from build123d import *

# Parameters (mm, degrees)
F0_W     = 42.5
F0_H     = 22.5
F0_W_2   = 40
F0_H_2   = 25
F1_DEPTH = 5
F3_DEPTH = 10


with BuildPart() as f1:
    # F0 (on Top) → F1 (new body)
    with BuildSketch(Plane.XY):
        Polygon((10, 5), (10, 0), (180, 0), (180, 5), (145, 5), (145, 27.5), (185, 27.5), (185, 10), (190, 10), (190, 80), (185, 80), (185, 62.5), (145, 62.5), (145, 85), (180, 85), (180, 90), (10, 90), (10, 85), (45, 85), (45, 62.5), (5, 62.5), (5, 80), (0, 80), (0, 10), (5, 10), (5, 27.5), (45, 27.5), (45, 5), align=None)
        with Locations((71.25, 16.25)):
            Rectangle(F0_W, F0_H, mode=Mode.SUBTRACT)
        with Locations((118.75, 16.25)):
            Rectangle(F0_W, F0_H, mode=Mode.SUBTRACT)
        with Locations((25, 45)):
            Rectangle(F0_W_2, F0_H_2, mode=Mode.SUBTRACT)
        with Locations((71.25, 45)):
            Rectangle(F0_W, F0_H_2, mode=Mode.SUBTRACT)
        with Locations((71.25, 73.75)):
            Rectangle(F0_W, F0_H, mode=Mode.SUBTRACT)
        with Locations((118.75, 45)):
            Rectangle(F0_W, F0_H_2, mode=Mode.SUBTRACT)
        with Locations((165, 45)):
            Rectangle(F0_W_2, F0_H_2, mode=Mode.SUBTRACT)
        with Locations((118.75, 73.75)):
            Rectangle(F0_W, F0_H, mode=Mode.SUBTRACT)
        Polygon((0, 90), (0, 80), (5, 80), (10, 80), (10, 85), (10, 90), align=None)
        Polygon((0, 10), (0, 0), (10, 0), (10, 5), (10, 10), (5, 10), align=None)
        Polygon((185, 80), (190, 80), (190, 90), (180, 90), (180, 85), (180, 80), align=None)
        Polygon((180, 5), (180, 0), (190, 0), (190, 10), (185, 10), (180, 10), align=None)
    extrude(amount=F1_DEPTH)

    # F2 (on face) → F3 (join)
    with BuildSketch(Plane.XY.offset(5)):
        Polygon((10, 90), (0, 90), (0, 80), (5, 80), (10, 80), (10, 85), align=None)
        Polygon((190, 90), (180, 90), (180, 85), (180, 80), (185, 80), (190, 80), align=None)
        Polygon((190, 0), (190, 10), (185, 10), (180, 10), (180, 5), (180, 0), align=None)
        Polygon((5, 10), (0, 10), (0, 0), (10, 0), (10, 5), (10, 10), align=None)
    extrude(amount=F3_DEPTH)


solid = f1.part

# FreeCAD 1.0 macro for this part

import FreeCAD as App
import Part
import Sketcher

V = App.Vector
Q = App.Units.Quantity

doc = App.newDocument("Part")
body = doc.addObject("PartDesign::Body", "Body")

sketch1 = body.newObject("Sketcher::SketchObject", "Sketch")
sketch1.AttachmentSupport = (doc.getObject("XY_Plane"), [""])
sketch1.MapMode = "FlatFace"
sketch1.addGeometry([
    Part.LineSegment(V(190, 90, 0), V(0, 90, 0)),
    Part.LineSegment(V(0, 90, 0), V(0, 0, 0)),
    Part.LineSegment(V(0, 0, 0), V(190, 0, 0)),
    Part.LineSegment(V(190, 0, 0), V(190, 90, 0)),
    Part.LineSegment(V(180, 5, 0), V(145, 5, 0)),
    Part.LineSegment(V(145, 5, 0), V(145, 27.5, 0)),
    Part.LineSegment(V(145, 27.5, 0), V(185, 27.5, 0)),
    Part.LineSegment(V(185, 27.5, 0), V(185, 10, 0)),
    Part.LineSegment(V(185, 10, 0), V(180, 10, 0)),
    Part.LineSegment(V(180, 10, 0), V(180, 5, 0)),
    Part.LineSegment(V(185, 80, 0), V(185, 62.5, 0)),
    Part.LineSegment(V(185, 62.5, 0), V(145, 62.5, 0)),
    Part.LineSegment(V(145, 62.5, 0), V(145, 85, 0)),
    Part.LineSegment(V(145, 85, 0), V(180, 85, 0)),
    Part.LineSegment(V(180, 85, 0), V(180, 80, 0)),
    Part.LineSegment(V(180, 80, 0), V(185, 80, 0)),
    Part.LineSegment(V(5, 10, 0), V(5, 27.5, 0)),
    Part.LineSegment(V(5, 27.5, 0), V(45, 27.5, 0)),
    Part.LineSegment(V(45, 27.5, 0), V(45, 5, 0)),
    Part.LineSegment(V(45, 5, 0), V(10, 5, 0)),
    Part.LineSegment(V(10, 5, 0), V(10, 10, 0)),
    Part.LineSegment(V(10, 10, 0), V(5, 10, 0)),
    Part.LineSegment(V(5, 62.5, 0), V(5, 80, 0)),
    Part.LineSegment(V(5, 80, 0), V(10, 80, 0)),
    Part.LineSegment(V(10, 80, 0), V(10, 85, 0)),
    Part.LineSegment(V(10, 85, 0), V(45, 85, 0)),
    Part.LineSegment(V(45, 85, 0), V(45, 62.5, 0)),
    Part.LineSegment(V(45, 62.5, 0), V(5, 62.5, 0)),
    Part.LineSegment(V(92.5, 5, 0), V(50, 5, 0)),
    Part.LineSegment(V(50, 5, 0), V(50, 27.5, 0)),
    Part.LineSegment(V(50, 27.5, 0), V(92.5, 27.5, 0)),
    Part.LineSegment(V(92.5, 27.5, 0), V(92.5, 5, 0)),
    Part.LineSegment(V(140, 5, 0), V(97.5, 5, 0)),
    Part.LineSegment(V(97.5, 5, 0), V(97.5, 27.5, 0)),
    Part.LineSegment(V(97.5, 27.5, 0), V(140, 27.5, 0)),
    Part.LineSegment(V(140, 27.5, 0), V(140, 5, 0)),
    Part.LineSegment(V(45, 32.5, 0), V(5, 32.5, 0)),
    Part.LineSegment(V(5, 32.5, 0), V(5, 57.5, 0)),
    Part.LineSegment(V(5, 57.5, 0), V(45, 57.5, 0)),
    Part.LineSegment(V(45, 57.5, 0), V(45, 32.5, 0)),
    Part.LineSegment(V(92.5, 32.5, 0), V(50, 32.5, 0)),
    Part.LineSegment(V(50, 32.5, 0), V(50, 57.5, 0)),
    Part.LineSegment(V(50, 57.5, 0), V(92.5, 57.5, 0)),
    Part.LineSegment(V(92.5, 57.5, 0), V(92.5, 32.5, 0)),
    Part.LineSegment(V(92.5, 62.5, 0), V(50, 62.5, 0)),
    Part.LineSegment(V(50, 62.5, 0), V(50, 85, 0)),
    Part.LineSegment(V(50, 85, 0), V(92.5, 85, 0)),
    Part.LineSegment(V(92.5, 85, 0), V(92.5, 62.5, 0)),
    Part.LineSegment(V(140, 32.5, 0), V(97.5, 32.5, 0)),
    Part.LineSegment(V(97.5, 32.5, 0), V(97.5, 57.5, 0)),
    Part.LineSegment(V(97.5, 57.5, 0), V(140, 57.5, 0)),
    Part.LineSegment(V(140, 57.5, 0), V(140, 32.5, 0)),
    Part.LineSegment(V(185, 32.5, 0), V(145, 32.5, 0)),
    Part.LineSegment(V(145, 32.5, 0), V(145, 57.5, 0)),
    Part.LineSegment(V(145, 57.5, 0), V(185, 57.5, 0)),
    Part.LineSegment(V(185, 57.5, 0), V(185, 32.5, 0)),
    Part.LineSegment(V(140, 62.5, 0), V(97.5, 62.5, 0)),
    Part.LineSegment(V(97.5, 62.5, 0), V(97.5, 85, 0)),
    Part.LineSegment(V(97.5, 85, 0), V(140, 85, 0)),
    Part.LineSegment(V(140, 85, 0), V(140, 62.5, 0)),
], False)
sketch1.addConstraint([
    Sketcher.Constraint("Coincident", 0, 2, 1, 1),
    Sketcher.Constraint("Coincident", 1, 2, 2, 1),
    Sketcher.Constraint("Coincident", 2, 2, 3, 1),
    Sketcher.Constraint("Coincident", 3, 2, 0, 1),
    Sketcher.Constraint("Coincident", 4, 2, 5, 1),
    Sketcher.Constraint("Coincident", 5, 2, 6, 1),
    Sketcher.Constraint("Coincident", 6, 2, 7, 1),
    Sketcher.Constraint("Coincident", 7, 2, 8, 1),
    Sketcher.Constraint("Coincident", 8, 2, 9, 1),
    Sketcher.Constraint("Coincident", 9, 2, 4, 1),
    Sketcher.Constraint("Coincident", 10, 2, 11, 1),
    Sketcher.Constraint("Coincident", 11, 2, 12, 1),
    Sketcher.Constraint("Coincident", 12, 2, 13, 1),
    Sketcher.Constraint("Coincident", 13, 2, 14, 1),
    Sketcher.Constraint("Coincident", 14, 2, 15, 1),
    Sketcher.Constraint("Coincident", 15, 2, 10, 1),
    Sketcher.Constraint("Coincident", 16, 2, 17, 1),
    Sketcher.Constraint("Coincident", 17, 2, 18, 1),
    Sketcher.Constraint("Coincident", 18, 2, 19, 1),
    Sketcher.Constraint("Coincident", 19, 2, 20, 1),
    Sketcher.Constraint("Coincident", 20, 2, 21, 1),
    Sketcher.Constraint("Coincident", 21, 2, 16, 1),
    Sketcher.Constraint("Coincident", 22, 2, 23, 1),
    Sketcher.Constraint("Coincident", 23, 2, 24, 1),
    Sketcher.Constraint("Coincident", 24, 2, 25, 1),
    Sketcher.Constraint("Coincident", 25, 2, 26, 1),
    Sketcher.Constraint("Coincident", 26, 2, 27, 1),
    Sketcher.Constraint("Coincident", 27, 2, 22, 1),
    Sketcher.Constraint("Coincident", 28, 2, 29, 1),
    Sketcher.Constraint("Coincident", 29, 2, 30, 1),
    Sketcher.Constraint("Coincident", 30, 2, 31, 1),
    Sketcher.Constraint("Coincident", 31, 2, 28, 1),
    Sketcher.Constraint("Coincident", 32, 2, 33, 1),
    Sketcher.Constraint("Coincident", 33, 2, 34, 1),
    Sketcher.Constraint("Coincident", 34, 2, 35, 1),
    Sketcher.Constraint("Coincident", 35, 2, 32, 1),
    Sketcher.Constraint("Coincident", 36, 2, 37, 1),
    Sketcher.Constraint("Coincident", 37, 2, 38, 1),
    Sketcher.Constraint("Coincident", 38, 2, 39, 1),
    Sketcher.Constraint("Coincident", 39, 2, 36, 1),
    Sketcher.Constraint("Coincident", 40, 2, 41, 1),
    Sketcher.Constraint("Coincident", 41, 2, 42, 1),
    Sketcher.Constraint("Coincident", 42, 2, 43, 1),
    Sketcher.Constraint("Coincident", 43, 2, 40, 1),
    Sketcher.Constraint("Coincident", 44, 2, 45, 1),
    Sketcher.Constraint("Coincident", 45, 2, 46, 1),
    Sketcher.Constraint("Coincident", 46, 2, 47, 1),
    Sketcher.Constraint("Coincident", 47, 2, 44, 1),
    Sketcher.Constraint("Coincident", 48, 2, 49, 1),
    Sketcher.Constraint("Coincident", 49, 2, 50, 1),
    Sketcher.Constraint("Coincident", 50, 2, 51, 1),
    Sketcher.Constraint("Coincident", 51, 2, 48, 1),
    Sketcher.Constraint("Coincident", 52, 2, 53, 1),
    Sketcher.Constraint("Coincident", 53, 2, 54, 1),
    Sketcher.Constraint("Coincident", 54, 2, 55, 1),
    Sketcher.Constraint("Coincident", 55, 2, 52, 1),
    Sketcher.Constraint("Coincident", 56, 2, 57, 1),
    Sketcher.Constraint("Coincident", 57, 2, 58, 1),
    Sketcher.Constraint("Coincident", 58, 2, 59, 1),
    Sketcher.Constraint("Coincident", 59, 2, 56, 1),
    Sketcher.Constraint("Horizontal", 0),
    Sketcher.Constraint("Vertical", 1),
    Sketcher.Constraint("Horizontal", 2),
    Sketcher.Constraint("Vertical", 3),
    Sketcher.Constraint("Horizontal", 4),
    Sketcher.Constraint("Vertical", 5),
    Sketcher.Constraint("Horizontal", 6),
    Sketcher.Constraint("Vertical", 7),
    Sketcher.Constraint("Horizontal", 8),
    Sketcher.Constraint("Vertical", 9),
    Sketcher.Constraint("Vertical", 10),
    Sketcher.Constraint("Horizontal", 11),
    Sketcher.Constraint("Vertical", 12),
    Sketcher.Constraint("Horizontal", 13),
    Sketcher.Constraint("Vertical", 14),
    Sketcher.Constraint("Horizontal", 15),
    Sketcher.Constraint("Vertical", 16),
    Sketcher.Constraint("Horizontal", 17),
    Sketcher.Constraint("Vertical", 18),
    Sketcher.Constraint("Horizontal", 19),
    Sketcher.Constraint("Vertical", 20),
    Sketcher.Constraint("Horizontal", 21),
    Sketcher.Constraint("Vertical", 22),
    Sketcher.Constraint("Horizontal", 23),
    Sketcher.Constraint("Vertical", 24),
    Sketcher.Constraint("Horizontal", 25),
    Sketcher.Constraint("Vertical", 26),
    Sketcher.Constraint("Horizontal", 27),
    Sketcher.Constraint("Horizontal", 28),
    Sketcher.Constraint("Vertical", 29),
    Sketcher.Constraint("Horizontal", 30),
    Sketcher.Constraint("Vertical", 31),
    Sketcher.Constraint("Horizontal", 32),
    Sketcher.Constraint("Vertical", 33),
    Sketcher.Constraint("Horizontal", 34),
    Sketcher.Constraint("Vertical", 35),
    Sketcher.Constraint("Horizontal", 36),
    Sketcher.Constraint("Vertical", 37),
    Sketcher.Constraint("Horizontal", 38),
    Sketcher.Constraint("Vertical", 39),
    Sketcher.Constraint("Horizontal", 40),
    Sketcher.Constraint("Vertical", 41),
    Sketcher.Constraint("Horizontal", 42),
    Sketcher.Constraint("Vertical", 43),
    Sketcher.Constraint("Horizontal", 44),
    Sketcher.Constraint("Vertical", 45),
    Sketcher.Constraint("Horizontal", 46),
    Sketcher.Constraint("Vertical", 47),
    Sketcher.Constraint("Horizontal", 48),
    Sketcher.Constraint("Vertical", 49),
    Sketcher.Constraint("Horizontal", 50),
    Sketcher.Constraint("Vertical", 51),
    Sketcher.Constraint("Horizontal", 52),
    Sketcher.Constraint("Vertical", 53),
    Sketcher.Constraint("Horizontal", 54),
    Sketcher.Constraint("Vertical", 55),
    Sketcher.Constraint("Horizontal", 56),
    Sketcher.Constraint("Vertical", 57),
    Sketcher.Constraint("Horizontal", 58),
    Sketcher.Constraint("Vertical", 59),
    Sketcher.Constraint("Coincident", 1, 2, -1, 1),
    Sketcher.Constraint("Horizontal", 6, 2, 16, 2),
    Sketcher.Constraint("Horizontal", 9, 2, 18, 2),
    Sketcher.Constraint("Horizontal", 8, 2, 20, 2),
    Sketcher.Constraint("Horizontal", 15, 2, 22, 2),
    Sketcher.Constraint("Horizontal", 13, 2, 24, 2),
    Sketcher.Constraint("Horizontal", 11, 2, 26, 2),
    Sketcher.Constraint("Horizontal", 19, 2, 28, 2),
    Sketcher.Constraint("Horizontal", 17, 2, 29, 2),
    Sketcher.Constraint("Horizontal", 31, 2, 32, 2),
    Sketcher.Constraint("Horizontal", 30, 2, 33, 2),
    Sketcher.Constraint("Horizontal", 39, 2, 40, 2),
    Sketcher.Constraint("Horizontal", 38, 2, 41, 2),
    Sketcher.Constraint("Horizontal", 27, 2, 44, 2),
    Sketcher.Constraint("Horizontal", 25, 2, 45, 2),
    Sketcher.Constraint("Horizontal", 43, 2, 48, 2),
    Sketcher.Constraint("Horizontal", 42, 2, 49, 2),
    Sketcher.Constraint("Horizontal", 51, 2, 52, 2),
    Sketcher.Constraint("Horizontal", 50, 2, 53, 2),
    Sketcher.Constraint("Horizontal", 47, 2, 56, 2),
    Sketcher.Constraint("Horizontal", 46, 2, 57, 2),
    Sketcher.Constraint("Vertical", 7, 2, 10, 2),
    Sketcher.Constraint("Vertical", 5, 2, 11, 2),
    Sketcher.Constraint("Vertical", 9, 2, 13, 2),
    Sketcher.Constraint("Vertical", 21, 2, 22, 2),
    Sketcher.Constraint("Vertical", 20, 2, 23, 2),
    Sketcher.Constraint("Vertical", 18, 2, 25, 2),
    Sketcher.Constraint("Vertical", 27, 2, 36, 2),
    Sketcher.Constraint("Vertical", 26, 2, 38, 2),
    Sketcher.Constraint("Vertical", 29, 2, 40, 2),
    Sketcher.Constraint("Vertical", 31, 2, 42, 2),
    Sketcher.Constraint("Vertical", 41, 2, 44, 2),
    Sketcher.Constraint("Vertical", 43, 2, 46, 2),
    Sketcher.Constraint("Vertical", 33, 2, 48, 2),
    Sketcher.Constraint("Vertical", 35, 2, 50, 2),
    Sketcher.Constraint("Vertical", 12, 2, 52, 2),
    Sketcher.Constraint("Vertical", 15, 2, 54, 2),
    Sketcher.Constraint("Vertical", 49, 2, 56, 2),
    Sketcher.Constraint("Vertical", 51, 2, 58, 2),
    Sketcher.Constraint("Equal", 11, 17),
    Sketcher.Constraint("Equal", 13, 19),
    Sketcher.Constraint("Equal", 30, 32),
    Sketcher.Constraint("Equal", 23, 9),
    Sketcher.Constraint("Equal", 7, 10),
    Sketcher.Constraint("Equal", 5, 12),
    Sketcher.Constraint("DistanceX", 0, 2, 0, 1, Q("190 mm")),
    Sketcher.Constraint("DistanceX", 4, 2, 4, 1, Q("35 mm")),
    Sketcher.Constraint("DistanceX", 6, 1, 6, 2, Q("40 mm")),
    Sketcher.Constraint("DistanceY", 1, 2, 1, 1, Q("90 mm")),
    Sketcher.Constraint("DistanceY", 37, 1, 37, 2, Q("25 mm")),
    Sketcher.Constraint("DistanceX", 28, 2, 28, 1, Q("42.5 mm")),
    Sketcher.Constraint("DistanceY", 5, 1, 5, 2, Q("22.5 mm")),
    Sketcher.Constraint("DistanceX", -1, 1, 4, 2, Q("145 mm")),
    Sketcher.Constraint("DistanceY", -1, 1, 4, 2, Q("5 mm")),
    Sketcher.Constraint("DistanceY", -1, 1, 12, 2, Q("85 mm")),
    Sketcher.Constraint("DistanceX", -1, 1, 16, 2, Q("5 mm")),
    Sketcher.Constraint("DistanceX", -1, 1, 28, 2, Q("50 mm")),
    Sketcher.Constraint("DistanceX", -1, 1, 34, 2, Q("140 mm")),
    Sketcher.Constraint("DistanceY", 16, 2, 36, 2, Q("5 mm")),
])
pad1 = body.newObject("PartDesign::Pad", "Pad")
pad1.Profile = sketch1
pad1.Length = 5

sketch2 = body.newObject("Sketcher::SketchObject", "Sketch001")
sketch2.AttachmentSupport = (doc.getObject("XY_Plane"), [""])
sketch2.MapMode = "FlatFace"
sketch2.AttachmentOffset = App.Placement(V(0, 0, 5), App.Rotation())
sketch2.addGeometry([
    Part.LineSegment(V(10, 90, 0), V(0, 90, 0)),
    Part.LineSegment(V(0, 90, 0), V(0, 80, 0)),
    Part.LineSegment(V(0, 80, 0), V(10, 80, 0)),
    Part.LineSegment(V(10, 80, 0), V(10, 90, 0)),
    Part.LineSegment(V(190, 90, 0), V(180, 90, 0)),
    Part.LineSegment(V(180, 90, 0), V(180, 80, 0)),
    Part.LineSegment(V(180, 80, 0), V(190, 80, 0)),
    Part.LineSegment(V(190, 80, 0), V(190, 90, 0)),
    Part.LineSegment(V(190, 0, 0), V(190, 10, 0)),
    Part.LineSegment(V(190, 10, 0), V(180, 10, 0)),
    Part.LineSegment(V(180, 10, 0), V(180, 0, 0)),
    Part.LineSegment(V(180, 0, 0), V(190, 0, 0)),
    Part.LineSegment(V(0, 10, 0), V(0, 0, 0)),
    Part.LineSegment(V(0, 0, 0), V(10, 0, 0)),
    Part.LineSegment(V(10, 0, 0), V(10, 10, 0)),
    Part.LineSegment(V(10, 10, 0), V(0, 10, 0)),
], False)
sketch2.addConstraint([
    Sketcher.Constraint("Coincident", 0, 2, 1, 1),
    Sketcher.Constraint("Coincident", 1, 2, 2, 1),
    Sketcher.Constraint("Coincident", 2, 2, 3, 1),
    Sketcher.Constraint("Coincident", 3, 2, 0, 1),
    Sketcher.Constraint("Coincident", 4, 2, 5, 1),
    Sketcher.Constraint("Coincident", 5, 2, 6, 1),
    Sketcher.Constraint("Coincident", 6, 2, 7, 1),
    Sketcher.Constraint("Coincident", 7, 2, 4, 1),
    Sketcher.Constraint("Coincident", 8, 2, 9, 1),
    Sketcher.Constraint("Coincident", 9, 2, 10, 1),
    Sketcher.Constraint("Coincident", 10, 2, 11, 1),
    Sketcher.Constraint("Coincident", 11, 2, 8, 1),
    Sketcher.Constraint("Coincident", 12, 2, 13, 1),
    Sketcher.Constraint("Coincident", 13, 2, 14, 1),
    Sketcher.Constraint("Coincident", 14, 2, 15, 1),
    Sketcher.Constraint("Coincident", 15, 2, 12, 1),
    Sketcher.Constraint("Horizontal", 0),
    Sketcher.Constraint("Vertical", 1),
    Sketcher.Constraint("Horizontal", 2),
    Sketcher.Constraint("Vertical", 3),
    Sketcher.Constraint("Horizontal", 4),
    Sketcher.Constraint("Vertical", 5),
    Sketcher.Constraint("Horizontal", 6),
    Sketcher.Constraint("Vertical", 7),
    Sketcher.Constraint("Vertical", 8),
    Sketcher.Constraint("Horizontal", 9),
    Sketcher.Constraint("Vertical", 10),
    Sketcher.Constraint("Horizontal", 11),
    Sketcher.Constraint("Vertical", 12),
    Sketcher.Constraint("Horizontal", 13),
    Sketcher.Constraint("Vertical", 14),
    Sketcher.Constraint("Horizontal", 15),
    Sketcher.Constraint("Coincident", 12, 2, -1, 1),
    Sketcher.Constraint("PointOnObject", 0, 2, -2),
    Sketcher.Constraint("PointOnObject", 10, 2, -1),
    Sketcher.Constraint("Horizontal", 3, 2, 4, 2),
    Sketcher.Constraint("Horizontal", 2, 2, 5, 2),
    Sketcher.Constraint("Horizontal", 9, 2, 14, 2),
    Sketcher.Constraint("Vertical", 7, 2, 8, 2),
    Sketcher.Constraint("Vertical", 5, 2, 9, 2),
    Sketcher.Constraint("Vertical", 3, 2, 13, 2),
    Sketcher.Constraint("Equal", 2, 4),
    Sketcher.Constraint("Equal", 15, 1),
    Sketcher.Constraint("Equal", 7, 8),
    Sketcher.Constraint("DistanceX", 0, 2, 0, 1, Q("10 mm")),
    Sketcher.Constraint("DistanceY", -1, 1, 0, 2, Q("90 mm")),
    Sketcher.Constraint("DistanceX", -1, 1, 4, 2, Q("180 mm")),
])
pad2 = body.newObject("PartDesign::Pad", "Pad001")
pad2.Profile = sketch2
pad2.Length = 10

doc.recompute()
